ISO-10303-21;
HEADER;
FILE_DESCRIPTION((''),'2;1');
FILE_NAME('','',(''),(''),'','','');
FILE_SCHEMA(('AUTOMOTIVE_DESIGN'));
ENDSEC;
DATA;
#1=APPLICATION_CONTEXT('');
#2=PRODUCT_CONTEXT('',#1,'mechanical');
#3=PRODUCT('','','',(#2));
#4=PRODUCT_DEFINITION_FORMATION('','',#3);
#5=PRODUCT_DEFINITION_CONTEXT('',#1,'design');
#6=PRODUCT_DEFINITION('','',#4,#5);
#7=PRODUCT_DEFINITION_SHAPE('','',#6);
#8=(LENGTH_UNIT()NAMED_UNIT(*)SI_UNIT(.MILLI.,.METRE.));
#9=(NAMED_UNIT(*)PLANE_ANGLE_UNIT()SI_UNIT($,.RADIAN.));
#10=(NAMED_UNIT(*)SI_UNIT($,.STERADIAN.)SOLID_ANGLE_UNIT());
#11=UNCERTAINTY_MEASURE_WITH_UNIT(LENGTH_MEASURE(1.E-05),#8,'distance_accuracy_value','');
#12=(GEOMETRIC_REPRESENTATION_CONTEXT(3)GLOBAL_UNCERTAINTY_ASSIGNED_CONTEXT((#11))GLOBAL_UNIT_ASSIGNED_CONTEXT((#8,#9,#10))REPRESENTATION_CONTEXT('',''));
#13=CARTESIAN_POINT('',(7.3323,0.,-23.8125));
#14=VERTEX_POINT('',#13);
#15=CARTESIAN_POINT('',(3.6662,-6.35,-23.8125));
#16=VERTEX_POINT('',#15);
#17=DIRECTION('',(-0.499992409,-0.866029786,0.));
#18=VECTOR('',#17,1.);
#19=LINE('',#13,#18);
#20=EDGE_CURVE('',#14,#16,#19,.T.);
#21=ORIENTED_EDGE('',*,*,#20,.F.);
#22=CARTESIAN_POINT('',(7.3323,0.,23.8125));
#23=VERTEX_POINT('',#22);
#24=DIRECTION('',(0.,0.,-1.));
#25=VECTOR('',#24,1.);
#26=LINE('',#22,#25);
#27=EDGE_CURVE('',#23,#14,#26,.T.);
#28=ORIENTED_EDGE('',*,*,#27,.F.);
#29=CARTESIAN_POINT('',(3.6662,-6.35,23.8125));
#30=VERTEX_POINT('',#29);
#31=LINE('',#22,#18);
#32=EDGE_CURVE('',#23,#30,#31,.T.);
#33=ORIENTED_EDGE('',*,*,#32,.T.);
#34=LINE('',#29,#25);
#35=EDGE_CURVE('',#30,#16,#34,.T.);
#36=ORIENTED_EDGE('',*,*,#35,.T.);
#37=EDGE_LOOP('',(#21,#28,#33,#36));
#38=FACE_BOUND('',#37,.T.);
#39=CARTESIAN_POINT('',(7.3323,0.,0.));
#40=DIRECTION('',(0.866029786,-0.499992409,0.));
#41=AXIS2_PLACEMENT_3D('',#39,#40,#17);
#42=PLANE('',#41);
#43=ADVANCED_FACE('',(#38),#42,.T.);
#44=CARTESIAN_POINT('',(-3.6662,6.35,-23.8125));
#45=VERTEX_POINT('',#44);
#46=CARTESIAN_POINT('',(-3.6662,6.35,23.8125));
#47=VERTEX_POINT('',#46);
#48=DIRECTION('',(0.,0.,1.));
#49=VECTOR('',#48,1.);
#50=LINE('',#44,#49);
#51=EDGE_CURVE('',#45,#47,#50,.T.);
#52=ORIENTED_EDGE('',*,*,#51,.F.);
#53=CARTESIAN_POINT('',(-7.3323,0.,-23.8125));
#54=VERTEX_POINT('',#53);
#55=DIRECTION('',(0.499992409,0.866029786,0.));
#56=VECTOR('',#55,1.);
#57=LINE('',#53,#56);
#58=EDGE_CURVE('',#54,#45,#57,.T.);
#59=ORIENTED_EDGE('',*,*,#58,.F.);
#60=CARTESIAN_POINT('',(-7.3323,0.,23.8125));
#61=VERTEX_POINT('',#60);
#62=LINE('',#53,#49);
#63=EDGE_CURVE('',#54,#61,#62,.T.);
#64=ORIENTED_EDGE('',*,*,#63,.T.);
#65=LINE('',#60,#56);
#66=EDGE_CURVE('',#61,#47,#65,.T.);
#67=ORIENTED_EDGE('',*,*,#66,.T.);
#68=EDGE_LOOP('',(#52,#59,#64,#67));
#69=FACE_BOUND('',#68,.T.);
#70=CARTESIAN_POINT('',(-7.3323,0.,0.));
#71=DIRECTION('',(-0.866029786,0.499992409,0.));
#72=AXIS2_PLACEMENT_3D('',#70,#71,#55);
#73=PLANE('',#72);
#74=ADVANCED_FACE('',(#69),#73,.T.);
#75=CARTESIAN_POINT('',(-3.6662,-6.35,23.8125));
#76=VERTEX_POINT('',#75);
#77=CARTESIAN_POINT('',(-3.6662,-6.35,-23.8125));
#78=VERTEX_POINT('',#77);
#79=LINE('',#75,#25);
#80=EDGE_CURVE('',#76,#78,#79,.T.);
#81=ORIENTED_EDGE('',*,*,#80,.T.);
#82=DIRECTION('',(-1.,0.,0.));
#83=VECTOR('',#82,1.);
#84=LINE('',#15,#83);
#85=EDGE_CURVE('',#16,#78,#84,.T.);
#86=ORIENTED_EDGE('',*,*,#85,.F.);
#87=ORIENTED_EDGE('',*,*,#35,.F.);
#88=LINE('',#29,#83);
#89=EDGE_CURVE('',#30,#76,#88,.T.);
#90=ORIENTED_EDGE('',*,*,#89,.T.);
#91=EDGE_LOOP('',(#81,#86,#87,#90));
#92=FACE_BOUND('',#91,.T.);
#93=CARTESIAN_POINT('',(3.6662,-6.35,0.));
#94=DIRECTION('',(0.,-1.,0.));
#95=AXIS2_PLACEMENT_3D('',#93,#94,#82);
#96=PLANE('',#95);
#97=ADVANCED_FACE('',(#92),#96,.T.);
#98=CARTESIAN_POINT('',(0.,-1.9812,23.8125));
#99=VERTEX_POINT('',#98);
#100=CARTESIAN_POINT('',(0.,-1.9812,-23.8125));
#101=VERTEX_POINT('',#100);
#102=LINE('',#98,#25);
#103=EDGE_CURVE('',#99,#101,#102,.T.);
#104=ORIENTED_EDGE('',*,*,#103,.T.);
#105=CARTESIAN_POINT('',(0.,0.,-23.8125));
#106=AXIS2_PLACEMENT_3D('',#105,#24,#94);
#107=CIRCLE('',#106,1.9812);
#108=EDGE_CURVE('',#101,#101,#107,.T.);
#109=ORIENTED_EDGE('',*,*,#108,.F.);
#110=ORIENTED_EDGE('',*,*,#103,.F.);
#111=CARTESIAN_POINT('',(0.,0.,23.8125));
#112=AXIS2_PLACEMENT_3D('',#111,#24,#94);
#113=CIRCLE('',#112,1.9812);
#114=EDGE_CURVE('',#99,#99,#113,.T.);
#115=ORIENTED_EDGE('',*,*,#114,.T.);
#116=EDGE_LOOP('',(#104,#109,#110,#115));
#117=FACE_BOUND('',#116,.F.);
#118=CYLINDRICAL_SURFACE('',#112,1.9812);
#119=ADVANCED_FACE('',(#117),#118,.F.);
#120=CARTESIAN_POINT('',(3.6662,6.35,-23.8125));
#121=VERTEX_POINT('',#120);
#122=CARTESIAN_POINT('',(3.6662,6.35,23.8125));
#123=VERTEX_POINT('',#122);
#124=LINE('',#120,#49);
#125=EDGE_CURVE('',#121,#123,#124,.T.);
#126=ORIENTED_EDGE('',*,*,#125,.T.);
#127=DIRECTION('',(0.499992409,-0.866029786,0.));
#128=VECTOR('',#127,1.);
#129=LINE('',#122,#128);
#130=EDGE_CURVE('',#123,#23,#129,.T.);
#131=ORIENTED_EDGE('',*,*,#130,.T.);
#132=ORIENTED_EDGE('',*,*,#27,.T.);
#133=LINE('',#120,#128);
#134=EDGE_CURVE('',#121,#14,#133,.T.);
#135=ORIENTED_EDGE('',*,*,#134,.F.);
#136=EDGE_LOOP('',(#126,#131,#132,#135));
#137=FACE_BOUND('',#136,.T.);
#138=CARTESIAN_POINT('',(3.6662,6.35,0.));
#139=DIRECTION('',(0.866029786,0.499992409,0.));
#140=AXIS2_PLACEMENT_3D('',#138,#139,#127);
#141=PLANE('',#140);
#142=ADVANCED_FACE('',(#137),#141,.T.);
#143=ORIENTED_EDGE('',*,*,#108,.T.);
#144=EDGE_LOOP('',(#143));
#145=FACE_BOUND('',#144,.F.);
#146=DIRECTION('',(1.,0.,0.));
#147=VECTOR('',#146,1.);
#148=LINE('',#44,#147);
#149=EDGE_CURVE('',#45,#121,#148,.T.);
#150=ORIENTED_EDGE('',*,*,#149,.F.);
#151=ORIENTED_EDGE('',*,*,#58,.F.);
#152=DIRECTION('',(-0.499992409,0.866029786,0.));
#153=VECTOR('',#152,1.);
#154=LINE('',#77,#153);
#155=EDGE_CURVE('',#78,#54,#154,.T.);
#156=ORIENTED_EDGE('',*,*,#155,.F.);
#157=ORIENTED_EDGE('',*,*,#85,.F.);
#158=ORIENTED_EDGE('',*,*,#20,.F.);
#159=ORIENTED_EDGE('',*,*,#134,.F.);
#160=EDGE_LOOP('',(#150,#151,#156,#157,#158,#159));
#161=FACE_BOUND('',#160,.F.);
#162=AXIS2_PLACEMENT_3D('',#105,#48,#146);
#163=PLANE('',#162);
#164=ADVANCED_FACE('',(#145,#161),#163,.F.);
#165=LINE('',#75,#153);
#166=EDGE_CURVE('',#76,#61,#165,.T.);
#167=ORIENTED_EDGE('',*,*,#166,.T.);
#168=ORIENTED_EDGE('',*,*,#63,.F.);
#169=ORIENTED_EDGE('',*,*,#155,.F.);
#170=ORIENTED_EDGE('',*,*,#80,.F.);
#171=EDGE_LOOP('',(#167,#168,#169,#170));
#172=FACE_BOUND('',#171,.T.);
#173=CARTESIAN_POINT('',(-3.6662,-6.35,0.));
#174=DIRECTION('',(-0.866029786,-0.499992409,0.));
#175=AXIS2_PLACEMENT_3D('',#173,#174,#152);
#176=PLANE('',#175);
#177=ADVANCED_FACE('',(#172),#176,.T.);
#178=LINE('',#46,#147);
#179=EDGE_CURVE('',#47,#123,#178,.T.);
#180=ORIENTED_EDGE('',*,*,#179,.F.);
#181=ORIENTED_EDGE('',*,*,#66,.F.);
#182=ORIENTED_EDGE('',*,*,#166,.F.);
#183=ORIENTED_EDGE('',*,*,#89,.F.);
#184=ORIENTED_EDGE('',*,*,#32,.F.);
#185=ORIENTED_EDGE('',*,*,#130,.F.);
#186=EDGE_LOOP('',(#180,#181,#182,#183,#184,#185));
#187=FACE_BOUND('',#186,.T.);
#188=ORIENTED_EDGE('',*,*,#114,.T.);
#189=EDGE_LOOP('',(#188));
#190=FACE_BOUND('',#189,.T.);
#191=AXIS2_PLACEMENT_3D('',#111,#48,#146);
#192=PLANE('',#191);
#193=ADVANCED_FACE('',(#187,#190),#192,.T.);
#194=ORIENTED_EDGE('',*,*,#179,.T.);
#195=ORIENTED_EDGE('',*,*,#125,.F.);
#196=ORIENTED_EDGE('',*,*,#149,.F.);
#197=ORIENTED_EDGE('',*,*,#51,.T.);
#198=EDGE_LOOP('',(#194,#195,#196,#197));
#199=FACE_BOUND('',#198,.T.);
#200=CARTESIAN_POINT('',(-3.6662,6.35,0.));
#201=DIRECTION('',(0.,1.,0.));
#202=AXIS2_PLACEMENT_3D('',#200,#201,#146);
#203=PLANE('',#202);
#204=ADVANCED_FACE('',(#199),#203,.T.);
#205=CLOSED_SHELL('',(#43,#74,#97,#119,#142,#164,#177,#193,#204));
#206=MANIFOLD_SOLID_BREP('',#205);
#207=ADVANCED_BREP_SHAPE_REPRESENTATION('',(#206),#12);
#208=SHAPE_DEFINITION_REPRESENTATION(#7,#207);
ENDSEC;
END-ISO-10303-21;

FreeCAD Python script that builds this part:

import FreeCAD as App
import Part
import Sketcher
Q = App.Units.Quantity


def add_polygon(sketch, points):
    """Adds a closed chain of lines whose ends are joined by coincident constraints."""
    first, n = sketch.GeometryCount, len(points)
    for a, b in zip(points, points[1:] + points[:1]):
        sketch.addGeometry(Part.LineSegment(App.Vector(*a, 0), App.Vector(*b, 0)), False)
    for i in range(n):
        sketch.addConstraint(Sketcher.Constraint("Coincident", first + i, 2, first + (i + 1) % n, 1))

doc = App.newDocument("Part")
body = doc.addObject("PartDesign::Body", "Body")

sketch1 = body.newObject("Sketcher::SketchObject", "Sketch")
sketch1.AttachmentSupport = (doc.getObject("XY_Plane"), [""])
sketch1.MapMode = "FlatFace"
add_polygon(sketch1, [(7, 0), (4, 6), (-4, 6), (-7, 0), (-4, -6), (4, -6)])
sketch1.addConstraint(Sketcher.Constraint("Horizontal", 1))
sketch1.addConstraint(Sketcher.Constraint("Horizontal", 4))
sketch1.addConstraint(Sketcher.Constraint("Symmetric", 0, 2, 3, 2, -1, 1))
sketch1.addConstraint(Sketcher.Constraint("Symmetric", 2, 2, 5, 2, -1, 1))
sketch1.addConstraint(Sketcher.Constraint("PointOnObject", 2, 2, -1))
sketch1.addConstraint(Sketcher.Constraint("Parallel", 2, 5))
sketch1.addConstraint(Sketcher.Constraint("Vertical", 1, 2, 3, 2))
sketch1.addConstraint(Sketcher.Constraint("DistanceY", 3, 2, 1, 2, Q("0.5 in")))
sketch1.addConstraint(Sketcher.Constraint("Angle", 0, Q("119.9995 deg")))
sketch1.addConstraint(Sketcher.Constraint("DistanceX", 2, 2, 0, 2, Q("0.433 in")))
pad1 = body.newObject("PartDesign::Pad", "Pad")
pad1.Profile = sketch1
pad1.Length = Q("1.875 in")
pad1.Midplane = True

sketch2 = body.newObject("Sketcher::SketchObject", "Sketch001")
sketch2.AttachmentSupport = (doc.getObject("XY_Plane"), [""])
sketch2.MapMode = "FlatFace"
sketch2.AttachmentOffset = App.Placement(App.Vector(0, 0, 0.9375 * 25.4), App.Rotation())
sketch2.addGeometry(Part.Circle(App.Vector(0, 0, 0), App.Vector(0, 0, 1), 2), False)
sketch2.addConstraint(Sketcher.Constraint("Coincident", 0, 3, -1, 1))
sketch2.addConstraint(Sketcher.Constraint("Diameter", 0, Q("0.156 in")))
doc.recompute()
hole = body.newObject("PartDesign::Hole", "Hole")
hole.Profile = sketch2
hole.ThreadType = "None"
hole.Diameter = Q("0.156 in")
hole.DepthType = "ThroughAll"

doc.recompute()
